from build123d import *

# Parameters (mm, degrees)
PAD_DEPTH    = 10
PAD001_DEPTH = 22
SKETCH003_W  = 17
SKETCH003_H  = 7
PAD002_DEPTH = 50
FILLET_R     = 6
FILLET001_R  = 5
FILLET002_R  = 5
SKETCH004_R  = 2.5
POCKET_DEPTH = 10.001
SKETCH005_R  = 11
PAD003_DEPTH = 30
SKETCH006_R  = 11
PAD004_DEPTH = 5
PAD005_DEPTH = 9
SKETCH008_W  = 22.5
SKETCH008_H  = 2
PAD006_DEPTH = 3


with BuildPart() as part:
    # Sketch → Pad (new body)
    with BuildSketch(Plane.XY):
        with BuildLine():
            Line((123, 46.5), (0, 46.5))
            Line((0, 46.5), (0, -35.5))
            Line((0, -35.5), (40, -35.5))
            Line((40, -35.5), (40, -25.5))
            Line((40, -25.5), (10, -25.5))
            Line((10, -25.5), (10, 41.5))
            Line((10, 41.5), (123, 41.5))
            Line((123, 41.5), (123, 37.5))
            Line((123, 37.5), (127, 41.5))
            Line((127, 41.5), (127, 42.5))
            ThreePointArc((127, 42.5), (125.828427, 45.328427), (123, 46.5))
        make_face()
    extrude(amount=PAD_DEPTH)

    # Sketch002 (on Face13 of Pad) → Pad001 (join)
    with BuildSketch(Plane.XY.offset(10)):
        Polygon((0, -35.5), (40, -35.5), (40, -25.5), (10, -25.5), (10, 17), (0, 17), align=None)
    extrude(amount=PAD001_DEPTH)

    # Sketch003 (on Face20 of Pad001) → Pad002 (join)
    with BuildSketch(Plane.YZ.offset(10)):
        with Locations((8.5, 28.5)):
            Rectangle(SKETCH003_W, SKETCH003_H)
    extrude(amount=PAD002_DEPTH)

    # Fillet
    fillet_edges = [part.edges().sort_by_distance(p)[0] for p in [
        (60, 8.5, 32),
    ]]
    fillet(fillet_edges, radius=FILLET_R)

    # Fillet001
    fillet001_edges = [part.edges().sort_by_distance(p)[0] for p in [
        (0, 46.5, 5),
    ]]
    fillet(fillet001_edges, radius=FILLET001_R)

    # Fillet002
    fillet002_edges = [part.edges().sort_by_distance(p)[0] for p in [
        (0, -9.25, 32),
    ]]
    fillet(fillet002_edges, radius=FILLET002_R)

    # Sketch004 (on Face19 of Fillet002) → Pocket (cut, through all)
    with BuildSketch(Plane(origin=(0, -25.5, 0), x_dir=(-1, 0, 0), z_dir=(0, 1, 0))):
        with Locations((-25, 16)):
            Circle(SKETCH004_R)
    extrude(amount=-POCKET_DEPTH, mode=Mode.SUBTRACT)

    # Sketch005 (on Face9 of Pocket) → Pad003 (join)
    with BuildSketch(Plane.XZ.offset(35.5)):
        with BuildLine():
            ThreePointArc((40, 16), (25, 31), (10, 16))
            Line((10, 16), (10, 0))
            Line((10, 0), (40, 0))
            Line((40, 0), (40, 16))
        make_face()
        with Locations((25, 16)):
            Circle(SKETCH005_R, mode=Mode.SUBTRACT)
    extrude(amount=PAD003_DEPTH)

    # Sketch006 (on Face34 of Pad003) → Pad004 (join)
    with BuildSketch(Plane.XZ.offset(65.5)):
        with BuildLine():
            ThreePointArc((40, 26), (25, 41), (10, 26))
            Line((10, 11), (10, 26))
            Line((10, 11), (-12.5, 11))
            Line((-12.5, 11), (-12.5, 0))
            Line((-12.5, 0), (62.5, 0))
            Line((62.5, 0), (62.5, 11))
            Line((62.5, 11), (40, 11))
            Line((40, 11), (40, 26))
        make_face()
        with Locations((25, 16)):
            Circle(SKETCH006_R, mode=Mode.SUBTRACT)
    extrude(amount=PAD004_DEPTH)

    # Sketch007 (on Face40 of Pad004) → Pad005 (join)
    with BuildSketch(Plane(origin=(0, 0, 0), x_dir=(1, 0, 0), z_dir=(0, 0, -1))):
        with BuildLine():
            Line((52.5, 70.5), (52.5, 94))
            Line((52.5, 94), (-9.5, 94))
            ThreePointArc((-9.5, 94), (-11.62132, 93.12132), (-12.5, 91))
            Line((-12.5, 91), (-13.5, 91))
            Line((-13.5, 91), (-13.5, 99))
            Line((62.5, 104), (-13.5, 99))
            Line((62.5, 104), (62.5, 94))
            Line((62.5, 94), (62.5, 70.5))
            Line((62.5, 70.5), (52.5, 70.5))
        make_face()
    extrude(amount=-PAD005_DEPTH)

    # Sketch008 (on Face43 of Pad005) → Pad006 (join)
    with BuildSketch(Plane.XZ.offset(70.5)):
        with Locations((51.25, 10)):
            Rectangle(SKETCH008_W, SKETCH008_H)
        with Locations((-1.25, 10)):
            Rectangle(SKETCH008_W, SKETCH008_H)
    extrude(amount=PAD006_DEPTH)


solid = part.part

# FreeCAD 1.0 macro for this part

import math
import FreeCAD as App
import Part
import Sketcher

V = App.Vector
Q = App.Units.Quantity


def edges_at(feature, points):
    """Names of the edges that pass closest to the given points."""
    edges = feature.Shape.Edges
    near = lambda p: min(range(len(edges)), key=lambda i: edges[i].distToShape(Part.Vertex(*p))[0])
    return sorted({f"Edge{near(p) + 1}" for p in points})

doc = App.newDocument("Part")
body = doc.addObject("PartDesign::Body", "Body")

# Sketch on XY plane
sketch1 = body.newObject("Sketcher::SketchObject", "Sketch")
sketch1.AttachmentSupport = (doc.getObject("XY_Plane"), [""])
sketch1.MapMode = "FlatFace"
sketch1.addGeometry([
    Part.LineSegment(V(123, 46.5, 0), V(0, 46.5, 0)),  # 0
    Part.LineSegment(V(0, 46.5, 0), V(0, -35.5, 0)),  # 1
    Part.LineSegment(V(0, -35.5, 0), V(40, -35.5, 0)),  # 2
    Part.LineSegment(V(40, -35.5, 0), V(40, -25.5, 0)),  # 3
    Part.LineSegment(V(40, -25.5, 0), V(10, -25.5, 0)),  # 4
    Part.LineSegment(V(10, -25.5, 0), V(10, 41.5, 0)),  # 5
    Part.LineSegment(V(10, 41.5, 0), V(123, 41.5, 0)),  # 6
    Part.LineSegment(V(123, 41.5, 0), V(123, 37.5, 0)),  # 7
    Part.LineSegment(V(123, 37.5, 0), V(127, 41.5, 0)),  # 8
    Part.LineSegment(V(127, 41.5, 0), V(127, 42.5, 0)),  # 9
    Part.ArcOfCircle(Part.Circle(V(123, 42.5, 0), V(0, 0, 1), 4), math.radians(0.000006), math.radians(89.999994)),  # 10
], False)
sketch1.addConstraint([
    Sketcher.Constraint("Coincident", 0, 2, 1, 1),
    Sketcher.Constraint("Coincident", 1, 2, 2, 1),
    Sketcher.Constraint("Coincident", 2, 2, 3, 1),
    Sketcher.Constraint("Coincident", 3, 2, 4, 1),
    Sketcher.Constraint("Coincident", 4, 2, 5, 1),
    Sketcher.Constraint("Coincident", 5, 2, 6, 1),
    Sketcher.Constraint("Coincident", 6, 2, 7, 1),
    Sketcher.Constraint("Coincident", 7, 2, 8, 1),
    Sketcher.Constraint("Coincident", 8, 2, 9, 1),
    Sketcher.Constraint("Tangent", 9, 2, 10, 1),
    Sketcher.Constraint("Tangent", 10, 2, 0, 1),
    Sketcher.Constraint("Horizontal", 0),
    Sketcher.Constraint("Vertical", 1),
    Sketcher.Constraint("Horizontal", 2),
    Sketcher.Constraint("Vertical", 3),
    Sketcher.Constraint("Horizontal", 4),
    Sketcher.Constraint("Vertical", 5),
    Sketcher.Constraint("Horizontal", 6),
    Sketcher.Constraint("Vertical", 7),
    Sketcher.Constraint("Vertical", 9),
    Sketcher.Constraint("PointOnObject", 0, 2, -2),
    Sketcher.Constraint("Horizontal", 6, 2, 8, 2),
    Sketcher.Constraint("Vertical", 10, 3, 6, 2),
    Sketcher.Constraint("Radius", 10, Q("4 mm")),
    Sketcher.Constraint("DistanceX", 0, 2, 0, 1, Q("123 mm")),
    Sketcher.Constraint("DistanceX", 2, 1, 2, 2, Q("40 mm")),
    Sketcher.Constraint("DistanceX", 4, 2, 4, 1, Q("30 mm")),
    Sketcher.Constraint("DistanceY", 1, 2, 1, 1, Q("82 mm")),
    Sketcher.Constraint("DistanceY", 3, 1, 3, 2, Q("10 mm")),
    Sketcher.Constraint("DistanceY", 5, 1, 5, 2, Q("67 mm")),
    Sketcher.Constraint("DistanceY", 7, 2, 7, 1, Q("4 mm")),
    Sketcher.Constraint("DistanceY", -1, 1, 10, 3, Q("42.5 mm")),
])
pad1 = body.newObject("PartDesign::Pad", "Pad")
pad1.Profile = sketch1
pad1.Length = 10

# Sketch on XY plane
sketch2 = body.newObject("Sketcher::SketchObject", "Sketch001")
sketch2.AttachmentSupport = (doc.getObject("XY_Plane"), [""])
sketch2.MapMode = "FlatFace"
sketch2.AttachmentOffset = App.Placement(V(0, 0, 10), App.Rotation())
sketch2.addGeometry([
    Part.LineSegment(V(0, -35.5, 0), V(40, -35.5, 0)),  # 0
    Part.LineSegment(V(40, -35.5, 0), V(40, -25.5, 0)),  # 1
    Part.LineSegment(V(40, -25.5, 0), V(10, -25.5, 0)),  # 2
    Part.LineSegment(V(10, -25.5, 0), V(10, 17, 0)),  # 3
    Part.LineSegment(V(10, 17, 0), V(0, 17, 0)),  # 4
    Part.LineSegment(V(0, 17, 0), V(0, -35.5, 0)),  # 5
], False)
sketch2.addConstraint([
    Sketcher.Constraint("Coincident", 0, 2, 1, 1),
    Sketcher.Constraint("Coincident", 1, 2, 2, 1),
    Sketcher.Constraint("Coincident", 2, 2, 3, 1),
    Sketcher.Constraint("Coincident", 3, 2, 4, 1),
    Sketcher.Constraint("Coincident", 4, 2, 5, 1),
    Sketcher.Constraint("Coincident", 5, 2, 0, 1),
    Sketcher.Constraint("Horizontal", 0),
    Sketcher.Constraint("Vertical", 1),
    Sketcher.Constraint("Horizontal", 2),
    Sketcher.Constraint("Vertical", 3),
    Sketcher.Constraint("Horizontal", 4),
    Sketcher.Constraint("Vertical", 5),
    Sketcher.Constraint("PointOnObject", 4, 2, -2),
    Sketcher.Constraint("Equal", 4, 1),
    Sketcher.Constraint("DistanceX", 0, 1, 0, 2, Q("40 mm")),
    Sketcher.Constraint("DistanceX", 2, 2, 2, 1, Q("30 mm")),
    Sketcher.Constraint("DistanceY", 3, 1, 3, 2, Q("42.5 mm")),
    Sketcher.Constraint("DistanceY", -1, 1, 3, 2, Q("17 mm")),
])
pad2 = body.newObject("PartDesign::Pad", "Pad001")
pad2.Profile = sketch2
pad2.Length = 22

# Sketch on YZ plane
sketch3 = body.newObject("Sketcher::SketchObject", "Sketch002")
sketch3.AttachmentSupport = (doc.getObject("YZ_Plane"), [""])
sketch3.MapMode = "FlatFace"
sketch3.AttachmentOffset = App.Placement(V(0, 0, 10), App.Rotation())
sketch3.addGeometry([
    Part.LineSegment(V(0, 32, 0), V(0, 25, 0)),
    Part.LineSegment(V(0, 25, 0), V(17, 25, 0)),
    Part.LineSegment(V(17, 25, 0), V(17, 32, 0)),
    Part.LineSegment(V(17, 32, 0), V(0, 32, 0)),
], False)
sketch3.addConstraint([
    Sketcher.Constraint("Coincident", 0, 2, 1, 1),
    Sketcher.Constraint("Coincident", 1, 2, 2, 1),
    Sketcher.Constraint("Coincident", 2, 2, 3, 1),
    Sketcher.Constraint("Coincident", 3, 2, 0, 1),
    Sketcher.Constraint("Vertical", 0),
    Sketcher.Constraint("Horizontal", 1),
    Sketcher.Constraint("Vertical", 2),
    Sketcher.Constraint("Horizontal", 3),
    Sketcher.Constraint("PointOnObject", 0, 2, -2),
    Sketcher.Constraint("DistanceX", 1, 1, 1, 2, Q("17 mm")),
    Sketcher.Constraint("DistanceY", 0, 2, 0, 1, Q("7 mm")),
    Sketcher.Constraint("DistanceY", -1, 1, 0, 2, Q("25 mm")),
])
pad3 = body.newObject("PartDesign::Pad", "Pad002")
pad3.Profile = sketch3
pad3.Length = 50
doc.recompute()

fillet = body.newObject("PartDesign::Fillet", "Fillet")
fillet.Base = (pad3, edges_at(pad3, [(60, 8.5, 32)]))
fillet.Radius = 6
doc.recompute()

fillet2 = body.newObject("PartDesign::Fillet", "Fillet001")
fillet2.Base = (fillet, edges_at(fillet, [(0, 46.5, 5)]))
fillet2.Radius = 5
doc.recompute()

fillet3 = body.newObject("PartDesign::Fillet", "Fillet002")
fillet3.Base = (fillet2, edges_at(fillet2, [(0, -9.25, 32)]))
fillet3.Radius = 5

# Sketch on XZ plane
sketch4 = body.newObject("Sketcher::SketchObject", "Sketch003")
sketch4.AttachmentSupport = (doc.getObject("XZ_Plane"), [""])
sketch4.MapMode = "FlatFace"
sketch4.AttachmentOffset = App.Placement(V(0, 0, 25.5), App.Rotation())
sketch4.addGeometry(Part.Circle(V(25, 16, 0), V(0, 0, 1), 2.5), False)
sketch4.addConstraint([
    Sketcher.Constraint("Diameter", 0, Q("5 mm")),
    Sketcher.Constraint("DistanceX", -1, 1, 0, 3, Q("25 mm")),
    Sketcher.Constraint("DistanceY", -1, 1, 0, 3, Q("16 mm")),
])
pocket1 = body.newObject("PartDesign::Pocket", "Pocket")
pocket1.Profile = sketch4
pocket1.Type = "ThroughAll"
pocket1.Reversed = True

# Sketch on XZ plane
sketch5 = body.newObject("Sketcher::SketchObject", "Sketch004")
sketch5.AttachmentSupport = (doc.getObject("XZ_Plane"), [""])
sketch5.MapMode = "FlatFace"
sketch5.AttachmentOffset = App.Placement(V(0, 0, 35.5), App.Rotation())
sketch5.addGeometry([
    Part.ArcOfCircle(Part.Circle(V(25, 16, 0), V(0, 0, 1), 15), math.radians(0), math.radians(180)),  # 0
    Part.LineSegment(V(10, 16, 0), V(10, 0, 0)),  # 1
    Part.LineSegment(V(10, 0, 0), V(40, 0, 0)),  # 2
    Part.LineSegment(V(40, 0, 0), V(40, 16, 0)),  # 3
    Part.Circle(V(25, 16, 0), V(0, 0, 1), 11),  # 4
], False)
sketch5.addConstraint([
    Sketcher.Constraint("Tangent", 0, 2, 1, 1),
    Sketcher.Constraint("Coincident", 1, 2, 2, 1),
    Sketcher.Constraint("Coincident", 2, 2, 3, 1),
    Sketcher.Constraint("Tangent", 3, 2, 0, 1),
    Sketcher.Constraint("Vertical", 1),
    Sketcher.Constraint("Horizontal", 2),
    Sketcher.Constraint("Vertical", 3),
    Sketcher.Constraint("Coincident", 4, 3, 0, 3),
    Sketcher.Constraint("PointOnObject", 1, 2, -1),
    Sketcher.Constraint("Diameter", 4, Q("22 mm")),
    Sketcher.Constraint("Radius", 0, Q("15 mm")),
    Sketcher.Constraint("DistanceY", 1, 2, 1, 1, Q("16 mm")),
    Sketcher.Constraint("DistanceX", -1, 1, 0, 3, Q("25 mm")),
])
pad4 = body.newObject("PartDesign::Pad", "Pad003")
pad4.Profile = sketch5
pad4.Length = 30

# Sketch on XZ plane
sketch6 = body.newObject("Sketcher::SketchObject", "Sketch005")
sketch6.AttachmentSupport = (doc.getObject("XZ_Plane"), [""])
sketch6.MapMode = "FlatFace"
sketch6.AttachmentOffset = App.Placement(V(0, 0, 65.5), App.Rotation())
sketch6.addGeometry([
    Part.ArcOfCircle(Part.Circle(V(25, 26, 0), V(0, 0, 1), 15), math.radians(0), math.radians(180)),  # 0
    Part.LineSegment(V(10, 26, 0), V(10, 11, 0)),  # 1
    Part.LineSegment(V(10, 11, 0), V(-12.5, 11, 0)),  # 2
    Part.LineSegment(V(-12.5, 11, 0), V(-12.5, 0, 0)),  # 3
    Part.LineSegment(V(-12.5, 0, 0), V(62.5, 0, 0)),  # 4
    Part.LineSegment(V(62.5, 0, 0), V(62.5, 11, 0)),  # 5
    Part.LineSegment(V(62.5, 11, 0), V(40, 11, 0)),  # 6
    Part.LineSegment(V(40, 11, 0), V(40, 26, 0)),  # 7
    Part.Circle(V(25, 16, 0), V(0, 0, 1), 11),  # 8
], False)
sketch6.addConstraint([
    Sketcher.Constraint("Tangent", 0, 2, 1, 1),
    Sketcher.Constraint("Coincident", 1, 2, 2, 1),
    Sketcher.Constraint("Coincident", 2, 2, 3, 1),
    Sketcher.Constraint("Coincident", 3, 2, 4, 1),
    Sketcher.Constraint("Coincident", 4, 2, 5, 1),
    Sketcher.Constraint("Coincident", 5, 2, 6, 1),
    Sketcher.Constraint("Coincident", 6, 2, 7, 1),
    Sketcher.Constraint("Tangent", 7, 2, 0, 1),
    Sketcher.Constraint("Vertical", 1),
    Sketcher.Constraint("Horizontal", 2),
    Sketcher.Constraint("Vertical", 3),
    Sketcher.Constraint("Horizontal", 4),
    Sketcher.Constraint("Vertical", 5),
    Sketcher.Constraint("Horizontal", 6),
    Sketcher.Constraint("Vertical", 7),
    Sketcher.Constraint("PointOnObject", 3, 2, -1),
    Sketcher.Constraint("Horizontal", 2, 2, 5, 2),
    Sketcher.Constraint("Vertical", 0, 3, 8, 3),
    Sketcher.Constraint("Equal", 2, 6),
    Sketcher.Constraint("Diameter", 8, Q("22 mm")),
    Sketcher.Constraint("Radius", 0, Q("15 mm")),
    Sketcher.Constraint("DistanceX", 4, 1, 4, 2, Q("75 mm")),
    Sketcher.Constraint("DistanceY", 1, 2, 1, 1, Q("15 mm")),
    Sketcher.Constraint("DistanceY", 3, 2, 3, 1, Q("11 mm")),
    Sketcher.Constraint("DistanceX", -1, 1, 0, 3, Q("25 mm")),
    Sketcher.Constraint("DistanceY", -1, 1, 8, 3, Q("16 mm")),
])
pad5 = body.newObject("PartDesign::Pad", "Pad004")
pad5.Profile = sketch6
pad5.Length = 5

# Sketch on XY plane
sketch7 = body.newObject("Sketcher::SketchObject", "Sketch006")
sketch7.AttachmentSupport = (doc.getObject("XY_Plane"), [""])
sketch7.MapMode = "FlatFace"
sketch7.addGeometry([
    Part.LineSegment(V(52.5, -94, 0), V(52.5, -70.5, 0)),  # 0
    Part.LineSegment(V(52.5, -70.5, 0), V(62.5, -70.5, 0)),  # 1
    Part.LineSegment(V(62.5, -70.5, 0), V(62.5, -104, 0)),  # 2
    Part.LineSegment(V(62.5, -104, 0), V(-13.5, -99, 0)),  # 3
    Part.LineSegment(V(-13.5, -99, 0), V(-13.5, -91, 0)),  # 4
    Part.LineSegment(V(-13.5, -91, 0), V(-12.5, -91, 0)),  # 5
    Part.ArcOfCircle(Part.Circle(V(-9.499999, -90.999999, 0), V(0, 0, 1), 3.000001), math.radians(-179.999978), math.radians(-90.000022)),  # 6
    Part.LineSegment(V(-9.5, -94, 0), V(52.5, -94, 0)),  # 7
], False)
sketch7.addConstraint([
    Sketcher.Constraint("Coincident", 0, 2, 1, 1),
    Sketcher.Constraint("Coincident", 1, 2, 2, 1),
    Sketcher.Constraint("Coincident", 2, 2, 3, 1),
    Sketcher.Constraint("Coincident", 3, 2, 4, 1),
    Sketcher.Constraint("Coincident", 4, 2, 5, 1),
    Sketcher.Constraint("Coincident", 5, 2, 6, 1),
    Sketcher.Constraint("Tangent", 6, 2, 7, 1),
    Sketcher.Constraint("Coincident", 7, 2, 0, 1),
    Sketcher.Constraint("Vertical", 0),
    Sketcher.Constraint("Horizontal", 1),
    Sketcher.Constraint("Vertical", 2),
    Sketcher.Constraint("Vertical", 4),
    Sketcher.Constraint("Horizontal", 5),
    Sketcher.Constraint("Horizontal", 7),
    Sketcher.Constraint("Horizontal", 6, 3, 4, 2),
    Sketcher.Constraint("Radius", 6, Q("3.000001 mm")),
    Sketcher.Constraint("DistanceX", 1, 1, 1, 2, Q("10 mm")),
    Sketcher.Constraint("DistanceX", 5, 1, 5, 2, Q("1 mm")),
    Sketcher.Constraint("DistanceX", 7, 1, 7, 2, Q("62 mm")),
    Sketcher.Constraint("DistanceY", 4, 1, 4, 2, Q("8 mm")),
    Sketcher.Constraint("DistanceY", 0, 1, 0, 2, Q("23.5 mm")),
    Sketcher.Constraint("DistanceY", 2, 2, 2, 1, Q("33.5 mm")),
    Sketcher.Constraint("DistanceY", 6, 3, -1, 1, Q("90.999999 mm")),
    Sketcher.Constraint("DistanceX", 6, 3, -1, 1, Q("9.499999 mm")),
])
pad6 = body.newObject("PartDesign::Pad", "Pad005")
pad6.Profile = sketch7
pad6.Length = 9

# Sketch on XZ plane
sketch8 = body.newObject("Sketcher::SketchObject", "Sketch007")
sketch8.AttachmentSupport = (doc.getObject("XZ_Plane"), [""])
sketch8.MapMode = "FlatFace"
sketch8.AttachmentOffset = App.Placement(V(0, 0, 70.5), App.Rotation())
sketch8.addGeometry([
    Part.LineSegment(V(40, 11, 0), V(40, 9, 0)),  # 0
    Part.LineSegment(V(40, 9, 0), V(62.5, 9, 0)),  # 1
    Part.LineSegment(V(62.5, 9, 0), V(62.5, 11, 0)),  # 2
    Part.LineSegment(V(62.5, 11, 0), V(40, 11, 0)),  # 3
    Part.LineSegment(V(-12.5, 11, 0), V(-12.5, 9, 0)),  # 4
    Part.LineSegment(V(-12.5, 9, 0), V(10, 9, 0)),  # 5
    Part.LineSegment(V(10, 9, 0), V(10, 11, 0)),  # 6
    Part.LineSegment(V(10, 11, 0), V(-12.5, 11, 0)),  # 7
], False)
sketch8.addConstraint([
    Sketcher.Constraint("Coincident", 0, 2, 1, 1),
    Sketcher.Constraint("Coincident", 1, 2, 2, 1),
    Sketcher.Constraint("Coincident", 2, 2, 3, 1),
    Sketcher.Constraint("Coincident", 3, 2, 0, 1),
    Sketcher.Constraint("Coincident", 4, 2, 5, 1),
    Sketcher.Constraint("Coincident", 5, 2, 6, 1),
    Sketcher.Constraint("Coincident", 6, 2, 7, 1),
    Sketcher.Constraint("Coincident", 7, 2, 4, 1),
    Sketcher.Constraint("Vertical", 0),
    Sketcher.Constraint("Horizontal", 1),
    Sketcher.Constraint("Vertical", 2),
    Sketcher.Constraint("Horizontal", 3),
    Sketcher.Constraint("Vertical", 4),
    Sketcher.Constraint("Horizontal", 5),
    Sketcher.Constraint("Vertical", 6),
    Sketcher.Constraint("Horizontal", 7),
    Sketcher.Constraint("Horizontal", 1, 2, 4, 2),
    Sketcher.Constraint("Horizontal", 3, 2, 6, 2),
    Sketcher.Constraint("Equal", 3, 5),
    Sketcher.Constraint("DistanceY", 0, 2, 0, 1, Q("2 mm")),
    Sketcher.Constraint("DistanceX", 1, 1, 1, 2, Q("22.5 mm")),
    Sketcher.Constraint("DistanceX", -1, 1, 0, 2, Q("40 mm")),
    Sketcher.Constraint("DistanceY", -1, 1, 0, 2, Q("9 mm")),
    Sketcher.Constraint("DistanceX", -1, 1, 5, 2, Q("10 mm")),
])
pad7 = body.newObject("PartDesign::Pad", "Pad006")
pad7.Profile = sketch8
pad7.Length = 3

doc.recompute()
